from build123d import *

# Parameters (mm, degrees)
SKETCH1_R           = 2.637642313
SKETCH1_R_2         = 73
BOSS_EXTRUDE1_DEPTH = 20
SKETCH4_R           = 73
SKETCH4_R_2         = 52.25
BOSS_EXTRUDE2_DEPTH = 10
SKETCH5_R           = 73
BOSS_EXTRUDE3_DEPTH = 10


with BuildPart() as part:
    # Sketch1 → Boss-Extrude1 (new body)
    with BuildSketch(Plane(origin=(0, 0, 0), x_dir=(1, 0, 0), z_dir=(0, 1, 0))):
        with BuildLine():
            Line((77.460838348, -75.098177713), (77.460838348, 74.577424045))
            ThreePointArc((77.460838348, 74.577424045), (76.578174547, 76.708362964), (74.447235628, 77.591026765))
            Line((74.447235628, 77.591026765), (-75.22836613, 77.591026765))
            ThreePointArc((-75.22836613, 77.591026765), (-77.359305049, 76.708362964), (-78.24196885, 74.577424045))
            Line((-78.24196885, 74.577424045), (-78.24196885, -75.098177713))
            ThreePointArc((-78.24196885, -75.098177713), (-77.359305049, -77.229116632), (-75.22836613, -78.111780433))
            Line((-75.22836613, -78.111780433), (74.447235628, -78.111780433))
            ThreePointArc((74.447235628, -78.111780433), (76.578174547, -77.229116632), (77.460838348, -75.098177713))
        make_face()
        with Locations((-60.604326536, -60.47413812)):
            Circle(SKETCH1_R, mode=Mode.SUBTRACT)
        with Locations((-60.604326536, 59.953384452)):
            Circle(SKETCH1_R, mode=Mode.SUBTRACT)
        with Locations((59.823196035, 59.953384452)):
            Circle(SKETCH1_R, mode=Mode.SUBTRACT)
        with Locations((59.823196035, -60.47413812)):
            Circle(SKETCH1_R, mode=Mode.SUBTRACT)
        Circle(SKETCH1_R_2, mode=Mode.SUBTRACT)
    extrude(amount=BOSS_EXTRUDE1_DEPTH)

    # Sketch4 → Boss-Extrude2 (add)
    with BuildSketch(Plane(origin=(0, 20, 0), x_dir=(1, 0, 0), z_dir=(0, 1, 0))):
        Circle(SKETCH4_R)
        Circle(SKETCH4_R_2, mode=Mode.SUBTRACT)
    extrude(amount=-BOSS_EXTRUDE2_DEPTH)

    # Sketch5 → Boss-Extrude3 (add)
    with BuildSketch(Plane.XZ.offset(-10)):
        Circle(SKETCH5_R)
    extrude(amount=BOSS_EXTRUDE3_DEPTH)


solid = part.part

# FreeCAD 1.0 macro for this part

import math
import FreeCAD as App
import Part
import Sketcher
Q = App.Units.Quantity

doc = App.newDocument("Part")
body = doc.addObject("PartDesign::Body", "Body")

# Sketch on XZ plane
sketch1 = doc.addObject("Sketcher::SketchObject", "Sketch")
body.addObject(sketch1)
sketch1.AttachmentSupport = (doc.XZ_Plane, [""])
sketch1.MapMode = "FlatFace"
sketch1.addGeometry(Part.LineSegment(App.Vector(77.5, 75.1, 0), App.Vector(77.5, -74.6, 0)), False)
sketch1.addGeometry(Part.ArcOfCircle(Part.Circle(App.Vector(74.4, -74.6, 0), App.Vector(0, 0, 1), 3), math.radians(-90), math.radians(0)), False)
sketch1.addGeometry(Part.LineSegment(App.Vector(74.4, -77.6, 0), App.Vector(-75.2, -77.6, 0)), False)
sketch1.addGeometry(Part.ArcOfCircle(Part.Circle(App.Vector(-75.2, -74.6, 0), App.Vector(0, 0, 1), 3), math.radians(180), math.radians(270)), False)
sketch1.addGeometry(Part.LineSegment(App.Vector(-78.2, -74.6, 0), App.Vector(-78.2, 75.1, 0)), False)
sketch1.addGeometry(Part.ArcOfCircle(Part.Circle(App.Vector(-75.2, 75.1, 0), App.Vector(0, 0, 1), 3), math.radians(90), math.radians(180)), False)
sketch1.addGeometry(Part.LineSegment(App.Vector(-75.2, 78.1, 0), App.Vector(74.4, 78.1, 0)), False)
sketch1.addGeometry(Part.ArcOfCircle(Part.Circle(App.Vector(74.4, 75.1, 0), App.Vector(0, 0, 1), 3), math.radians(0), math.radians(90)), False)
sketch1.addGeometry(Part.Circle(App.Vector(-60.6, 60.5, 0), App.Vector(0, 0, 1), 2.6), False)
sketch1.addGeometry(Part.Circle(App.Vector(59.8, 60.5, 0), App.Vector(0, 0, 1), 2.6), False)
sketch1.addGeometry(Part.Circle(App.Vector(-60.6, -60, 0), App.Vector(0, 0, 1), 2.6), False)
sketch1.addGeometry(Part.Circle(App.Vector(0, 0, 0), App.Vector(0, 0, 1), 73), False)
sketch1.addGeometry(Part.Circle(App.Vector(59.8, -60, 0), App.Vector(0, 0, 1), 2.6), False)
sketch1.addConstraint(Sketcher.Constraint("Tangent", 0, 2, 1, 2))
sketch1.addConstraint(Sketcher.Constraint("Tangent", 1, 1, 2, 1))
sketch1.addConstraint(Sketcher.Constraint("Tangent", 2, 2, 3, 2))
sketch1.addConstraint(Sketcher.Constraint("Tangent", 3, 1, 4, 1))
sketch1.addConstraint(Sketcher.Constraint("Tangent", 4, 2, 5, 2))
sketch1.addConstraint(Sketcher.Constraint("Tangent", 5, 1, 6, 1))
sketch1.addConstraint(Sketcher.Constraint("Tangent", 6, 2, 7, 2))
sketch1.addConstraint(Sketcher.Constraint("Tangent", 7, 1, 0, 1))
sketch1.addConstraint(Sketcher.Constraint("Vertical", 0))
sketch1.addConstraint(Sketcher.Constraint("Horizontal", 2))
sketch1.addConstraint(Sketcher.Constraint("Vertical", 4))
sketch1.addConstraint(Sketcher.Constraint("Horizontal", 6))
sketch1.addConstraint(Sketcher.Constraint("Coincident", 11, 3, -1, 1))
sketch1.addConstraint(Sketcher.Constraint("Equal", 1, 3))
sketch1.addConstraint(Sketcher.Constraint("Equal", 3, 5))
sketch1.addConstraint(Sketcher.Constraint("Equal", 5, 7))
sketch1.addConstraint(Sketcher.Constraint("Equal", 8, 9))
sketch1.addConstraint(Sketcher.Constraint("Equal", 9, 10))
sketch1.addConstraint(Sketcher.Constraint("Equal", 10, 12))
sketch1.addConstraint(Sketcher.Constraint("Horizontal", 8, 3, 9, 3))
sketch1.addConstraint(Sketcher.Constraint("Horizontal", 10, 3, 12, 3))
sketch1.addConstraint(Sketcher.Constraint("Vertical", 8, 3, 10, 3))
sketch1.addConstraint(Sketcher.Constraint("Vertical", 9, 3, 12, 3))
sketch1.addConstraint(Sketcher.Constraint("Equal", 6, 0))
sketch1.addConstraint(Sketcher.Constraint("Diameter", 11, Q("146 mm")))
sketch1.addConstraint(Sketcher.Constraint("Diameter", 8, Q("5.275285 mm")))
sketch1.addConstraint(Sketcher.Constraint("DistanceX", 2, 2, 2, 1, Q("149.675602 mm")))
sketch1.addConstraint(Sketcher.Constraint("Radius", 1, Q("3.013603 mm")))
sketch1.addConstraint(Sketcher.Constraint("DistanceY", -1, 1, 8, 3, Q("60.474138 mm")))
sketch1.addConstraint(Sketcher.Constraint("DistanceX", -1, 1, 0, 2, Q("77.460838 mm")))
sketch1.addConstraint(Sketcher.Constraint("DistanceY", -1, 1, 5, 1, Q("78.11178 mm")))
sketch1.addConstraint(Sketcher.Constraint("DistanceX", 5, 3, 8, 3, Q("14.62404 mm")))
sketch1.addConstraint(Sketcher.Constraint("DistanceX", 9, 3, 7, 3, Q("14.62404 mm")))
sketch1.addConstraint(Sketcher.Constraint("DistanceY", 3, 3, 10, 3, Q("14.62404 mm")))
pad1 = doc.addObject("PartDesign::Pad", "Pad")
body.addObject(pad1)
pad1.Profile = sketch1
pad1.Length = 20
pad1.Reversed = True

# Sketch on XZ plane
sketch2 = doc.addObject("Sketcher::SketchObject", "Sketch001")
body.addObject(sketch2)
sketch2.AttachmentSupport = (doc.XZ_Plane, [""])
sketch2.MapMode = "FlatFace"
sketch2.AttachmentOffset = App.Placement(App.Vector(0, 0, -20), App.Rotation())
sketch2.addGeometry(Part.Circle(App.Vector(0, 0, 0), App.Vector(0, 0, 1), 73), False)
sketch2.addGeometry(Part.Circle(App.Vector(0, 0, 0), App.Vector(0, 0, 1), 52), False)
sketch2.addConstraint(Sketcher.Constraint("Coincident", 0, 3, -1, 1))
sketch2.addConstraint(Sketcher.Constraint("Coincident", 1, 3, -1, 1))
sketch2.addConstraint(Sketcher.Constraint("Diameter", 0, Q("146 mm")))
sketch2.addConstraint(Sketcher.Constraint("Diameter", 1, Q("104.5 mm")))
pad2 = doc.addObject("PartDesign::Pad", "Pad001")
body.addObject(pad2)
pad2.Profile = sketch2
pad2.Length = 10

# Sketch on XZ plane
sketch3 = doc.addObject("Sketcher::SketchObject", "Sketch002")
body.addObject(sketch3)
sketch3.AttachmentSupport = (doc.XZ_Plane, [""])
sketch3.MapMode = "FlatFace"
sketch3.AttachmentOffset = App.Placement(App.Vector(0, 0, -10), App.Rotation())
sketch3.addGeometry(Part.Circle(App.Vector(0, 0, 0), App.Vector(0, 0, 1), 73), False)
sketch3.addConstraint(Sketcher.Constraint("Coincident", 0, 3, -1, 1))
sketch3.addConstraint(Sketcher.Constraint("Diameter", 0, Q("146 mm")))
pad3 = doc.addObject("PartDesign::Pad", "Pad002")
body.addObject(pad3)
pad3.Profile = sketch3
pad3.Length = 10

doc.recompute()
